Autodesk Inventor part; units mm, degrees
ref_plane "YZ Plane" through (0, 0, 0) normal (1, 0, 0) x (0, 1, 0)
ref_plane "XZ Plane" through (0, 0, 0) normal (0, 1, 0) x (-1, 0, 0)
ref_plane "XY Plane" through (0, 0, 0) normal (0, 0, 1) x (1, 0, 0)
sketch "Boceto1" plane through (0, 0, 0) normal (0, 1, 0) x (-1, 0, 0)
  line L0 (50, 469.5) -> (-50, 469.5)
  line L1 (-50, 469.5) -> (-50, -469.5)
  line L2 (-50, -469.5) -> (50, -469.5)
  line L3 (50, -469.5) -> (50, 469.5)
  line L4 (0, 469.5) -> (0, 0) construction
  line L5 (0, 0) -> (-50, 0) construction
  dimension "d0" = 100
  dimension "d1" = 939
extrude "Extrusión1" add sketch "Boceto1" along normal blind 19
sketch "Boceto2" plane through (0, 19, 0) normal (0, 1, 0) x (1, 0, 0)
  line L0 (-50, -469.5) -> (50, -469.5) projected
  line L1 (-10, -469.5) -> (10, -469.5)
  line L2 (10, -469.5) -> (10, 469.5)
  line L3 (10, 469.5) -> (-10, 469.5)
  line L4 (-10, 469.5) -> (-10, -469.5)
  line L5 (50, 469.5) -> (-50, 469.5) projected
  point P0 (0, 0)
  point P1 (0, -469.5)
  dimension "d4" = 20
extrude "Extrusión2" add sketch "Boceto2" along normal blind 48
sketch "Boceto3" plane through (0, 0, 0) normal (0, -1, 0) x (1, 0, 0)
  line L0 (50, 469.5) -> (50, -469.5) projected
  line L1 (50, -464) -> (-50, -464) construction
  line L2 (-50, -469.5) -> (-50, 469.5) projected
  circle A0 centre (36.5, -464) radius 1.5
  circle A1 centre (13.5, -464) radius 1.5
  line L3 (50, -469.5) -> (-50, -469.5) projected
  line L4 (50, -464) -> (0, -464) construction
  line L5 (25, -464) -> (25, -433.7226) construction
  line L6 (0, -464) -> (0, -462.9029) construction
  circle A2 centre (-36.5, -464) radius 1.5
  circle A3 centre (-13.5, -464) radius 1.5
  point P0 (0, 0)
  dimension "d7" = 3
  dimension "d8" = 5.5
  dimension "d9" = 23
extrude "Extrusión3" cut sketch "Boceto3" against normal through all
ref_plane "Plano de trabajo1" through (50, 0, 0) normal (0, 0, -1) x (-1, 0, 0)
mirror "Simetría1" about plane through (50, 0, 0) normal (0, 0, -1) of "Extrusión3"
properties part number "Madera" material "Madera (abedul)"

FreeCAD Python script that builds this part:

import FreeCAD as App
import Part
import Sketcher
from FreeCAD import Vector
Q = App.Units.Quantity

doc = App.newDocument("Part")
body = doc.addObject("PartDesign::Body", "Body")

sketch1 = body.newObject("Sketcher::SketchObject", "Sketch")
sketch1.AttachmentSupport = (doc.getObject("XZ_Plane"), [""])
sketch1.MapMode = "FlatFace"
sketch1.addGeometry([
    Part.LineSegment(Vector(-50, -470, 0), Vector(-50, 470, 0)),
    Part.LineSegment(Vector(-50, 470, 0), Vector(50, 470, 0)),
    Part.LineSegment(Vector(50, 470, 0), Vector(50, -470, 0)),
    Part.LineSegment(Vector(50, -470, 0), Vector(-50, -470, 0)),
], False)
sketch1.addConstraint([
    Sketcher.Constraint("Coincident", 0, 2, 1, 1),
    Sketcher.Constraint("Coincident", 1, 2, 2, 1),
    Sketcher.Constraint("Coincident", 2, 2, 3, 1),
    Sketcher.Constraint("Coincident", 3, 2, 0, 1),
    Sketcher.Constraint("Vertical", 0),
    Sketcher.Constraint("Horizontal", 1),
    Sketcher.Constraint("Vertical", 2),
    Sketcher.Constraint("Horizontal", 3),
    Sketcher.Constraint("Symmetric", 0, 2, 2, 2, -1, 1),
    Sketcher.Constraint("DistanceX", 1, 1, 1, 2, Q("100 mm")),
    Sketcher.Constraint("DistanceY", 0, 1, 0, 2, Q("939 mm")),
])
pad1 = body.newObject("PartDesign::Pad", "Pad")
pad1.Profile = sketch1
pad1.Length = 19
pad1.Reversed = True

sketch2 = body.newObject("Sketcher::SketchObject", "Sketch001")
sketch2.AttachmentSupport = (doc.getObject("XZ_Plane"), [""])
sketch2.MapMode = "FlatFace"
sketch2.AttachmentOffset = App.Placement(Vector(0, 0, -19), App.Rotation())
sketch2.addGeometry([
    Part.LineSegment(Vector(-10, -470, 0), Vector(-10, 470, 0)),
    Part.LineSegment(Vector(-10, 470, 0), Vector(10, 470, 0)),
    Part.LineSegment(Vector(10, 470, 0), Vector(10, -470, 0)),
    Part.LineSegment(Vector(10, -470, 0), Vector(-10, -470, 0)),
], False)
sketch2.addConstraint([
    Sketcher.Constraint("Coincident", 0, 2, 1, 1),
    Sketcher.Constraint("Coincident", 1, 2, 2, 1),
    Sketcher.Constraint("Coincident", 2, 2, 3, 1),
    Sketcher.Constraint("Coincident", 3, 2, 0, 1),
    Sketcher.Constraint("Vertical", 0),
    Sketcher.Constraint("Horizontal", 1),
    Sketcher.Constraint("Vertical", 2),
    Sketcher.Constraint("Horizontal", 3),
    Sketcher.Constraint("Symmetric", 0, 2, 2, 2, -1, 1),
    Sketcher.Constraint("DistanceX", 1, 1, 1, 2, Q("20 mm")),
    Sketcher.Constraint("DistanceY", 0, 1, 0, 2, Q("939 mm")),
])
pad2 = body.newObject("PartDesign::Pad", "Pad001")
pad2.Profile = sketch2
pad2.Length = 48
pad2.Reversed = True

sketch3 = body.newObject("Sketcher::SketchObject", "Sketch002")
sketch3.AttachmentSupport = (doc.getObject("XZ_Plane"), [""])
sketch3.MapMode = "FlatFace"
sketch3.addGeometry([
    Part.Circle(Vector(36.5, -464, 0), Vector(0, 0, 1), 1.5),
    Part.Circle(Vector(13.5, -464, 0), Vector(0, 0, 1), 1.5),
    Part.Circle(Vector(-36.5, -464, 0), Vector(0, 0, 1), 1.5),
    Part.Circle(Vector(-13.5, -464, 0), Vector(0, 0, 1), 1.5),
], False)
sketch3.addConstraint([
    Sketcher.Constraint("Equal", 0, 1),
    Sketcher.Constraint("Equal", 1, 2),
    Sketcher.Constraint("Equal", 2, 3),
    Sketcher.Constraint("Symmetric", 0, 3, 2, 3, -2),
    Sketcher.Constraint("Symmetric", 1, 3, 3, 3, -2),
    Sketcher.Constraint("Horizontal", 0, 3, 1, 3),
    Sketcher.Constraint("Diameter", 0, Q("3 mm")),
    Sketcher.Constraint("DistanceX", 1, 3, 0, 3, Q("23 mm")),
    Sketcher.Constraint("DistanceY", 0, 3, -1, 1, Q("464 mm")),
    Sketcher.Constraint("DistanceX", 2, 3, 1, 3, Q("50 mm")),
])
pocket1 = body.newObject("PartDesign::Pocket", "Pocket")
pocket1.Profile = sketch3
pocket1.Type = "ThroughAll"
doc.recompute()

mirrored = body.newObject("PartDesign::Mirrored", "Mirrored")
mirrored.Originals = [pocket1]
mirrored.MirrorPlane = (doc.getObject("XY_Plane"), [""])
body.Tip = mirrored

doc.recompute()
